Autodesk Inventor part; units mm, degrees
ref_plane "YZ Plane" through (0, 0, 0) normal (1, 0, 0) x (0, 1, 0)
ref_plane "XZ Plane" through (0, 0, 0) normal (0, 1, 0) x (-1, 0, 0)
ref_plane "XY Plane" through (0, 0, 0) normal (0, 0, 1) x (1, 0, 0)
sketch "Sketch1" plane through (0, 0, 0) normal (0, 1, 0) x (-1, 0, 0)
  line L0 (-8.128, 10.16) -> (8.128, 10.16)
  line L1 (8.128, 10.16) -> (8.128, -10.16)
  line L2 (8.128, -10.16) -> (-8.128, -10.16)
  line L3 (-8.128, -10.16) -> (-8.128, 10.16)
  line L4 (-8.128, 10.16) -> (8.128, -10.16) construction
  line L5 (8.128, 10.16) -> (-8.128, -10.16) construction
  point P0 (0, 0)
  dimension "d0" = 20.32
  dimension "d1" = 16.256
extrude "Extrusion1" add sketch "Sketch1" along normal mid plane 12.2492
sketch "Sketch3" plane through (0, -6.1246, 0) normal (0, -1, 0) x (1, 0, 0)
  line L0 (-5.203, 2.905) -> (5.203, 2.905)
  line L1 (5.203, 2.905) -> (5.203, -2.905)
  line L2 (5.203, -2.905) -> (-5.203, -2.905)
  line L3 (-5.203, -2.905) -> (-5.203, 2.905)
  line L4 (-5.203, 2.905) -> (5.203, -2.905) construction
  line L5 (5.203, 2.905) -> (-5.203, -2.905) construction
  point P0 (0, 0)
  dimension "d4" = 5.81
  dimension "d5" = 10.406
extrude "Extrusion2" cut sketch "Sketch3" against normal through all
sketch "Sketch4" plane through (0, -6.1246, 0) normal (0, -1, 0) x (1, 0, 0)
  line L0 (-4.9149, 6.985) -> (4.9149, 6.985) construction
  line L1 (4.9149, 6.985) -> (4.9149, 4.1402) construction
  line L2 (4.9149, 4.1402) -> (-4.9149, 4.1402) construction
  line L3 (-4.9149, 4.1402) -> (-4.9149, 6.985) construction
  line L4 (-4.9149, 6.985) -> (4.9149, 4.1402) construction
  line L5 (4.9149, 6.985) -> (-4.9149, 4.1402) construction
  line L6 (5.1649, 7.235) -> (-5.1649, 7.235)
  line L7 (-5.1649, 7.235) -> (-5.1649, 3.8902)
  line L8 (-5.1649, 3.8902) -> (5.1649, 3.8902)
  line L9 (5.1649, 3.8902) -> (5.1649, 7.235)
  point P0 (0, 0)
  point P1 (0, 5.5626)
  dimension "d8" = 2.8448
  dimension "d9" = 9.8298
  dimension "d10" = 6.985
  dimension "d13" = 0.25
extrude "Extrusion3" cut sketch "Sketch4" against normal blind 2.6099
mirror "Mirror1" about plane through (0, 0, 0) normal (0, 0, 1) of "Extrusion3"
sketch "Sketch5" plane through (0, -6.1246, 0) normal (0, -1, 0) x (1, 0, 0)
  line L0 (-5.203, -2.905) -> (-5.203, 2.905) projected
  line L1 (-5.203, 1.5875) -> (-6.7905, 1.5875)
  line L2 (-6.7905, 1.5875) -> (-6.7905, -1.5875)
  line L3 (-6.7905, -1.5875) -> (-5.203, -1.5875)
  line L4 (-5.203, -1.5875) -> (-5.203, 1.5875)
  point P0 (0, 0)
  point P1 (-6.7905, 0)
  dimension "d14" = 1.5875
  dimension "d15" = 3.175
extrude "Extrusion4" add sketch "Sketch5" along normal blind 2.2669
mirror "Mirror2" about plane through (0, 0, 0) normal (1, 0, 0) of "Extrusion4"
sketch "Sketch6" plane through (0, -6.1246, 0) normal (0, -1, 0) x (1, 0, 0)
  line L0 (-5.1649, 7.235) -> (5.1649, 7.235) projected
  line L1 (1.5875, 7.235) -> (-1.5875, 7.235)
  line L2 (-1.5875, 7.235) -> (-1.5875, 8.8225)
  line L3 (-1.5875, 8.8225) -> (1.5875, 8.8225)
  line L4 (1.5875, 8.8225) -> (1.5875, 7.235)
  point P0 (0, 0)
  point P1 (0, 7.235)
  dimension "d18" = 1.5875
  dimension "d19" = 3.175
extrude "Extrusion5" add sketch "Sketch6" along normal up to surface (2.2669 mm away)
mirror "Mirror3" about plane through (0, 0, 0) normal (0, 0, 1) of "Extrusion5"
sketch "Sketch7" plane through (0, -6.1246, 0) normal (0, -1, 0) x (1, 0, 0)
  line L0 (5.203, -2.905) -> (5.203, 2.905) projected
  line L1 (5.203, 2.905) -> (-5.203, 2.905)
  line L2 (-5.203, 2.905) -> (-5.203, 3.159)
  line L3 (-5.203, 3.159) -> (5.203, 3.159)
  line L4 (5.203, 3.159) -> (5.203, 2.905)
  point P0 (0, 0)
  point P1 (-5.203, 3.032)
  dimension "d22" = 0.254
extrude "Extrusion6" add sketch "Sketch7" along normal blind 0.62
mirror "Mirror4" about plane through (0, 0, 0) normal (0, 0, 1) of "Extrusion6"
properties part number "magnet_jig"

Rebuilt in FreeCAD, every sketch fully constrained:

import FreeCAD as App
import Part
import Sketcher

V = App.Vector
Q = App.Units.Quantity

doc = App.newDocument("Part")
body = doc.addObject("PartDesign::Body", "Body")

sketch1 = body.newObject("Sketcher::SketchObject", "Sketch")
sketch1.AttachmentSupport = (doc.getObject("XZ_Plane"), [""])
sketch1.MapMode = "FlatFace"
sketch1.addGeometry(Part.LineSegment(V(-8, 10, 0), V(8, 10, 0)), False)
sketch1.addGeometry(Part.LineSegment(V(8, 10, 0), V(8, -10, 0)), False)
sketch1.addGeometry(Part.LineSegment(V(8, -10, 0), V(-8, -10, 0)), False)
sketch1.addGeometry(Part.LineSegment(V(-8, -10, 0), V(-8, 10, 0)), False)
sketch1.addConstraint(Sketcher.Constraint("Coincident", 0, 2, 1, 1))
sketch1.addConstraint(Sketcher.Constraint("Coincident", 1, 2, 2, 1))
sketch1.addConstraint(Sketcher.Constraint("Coincident", 2, 2, 3, 1))
sketch1.addConstraint(Sketcher.Constraint("Coincident", 3, 2, 0, 1))
sketch1.addConstraint(Sketcher.Constraint("Horizontal", 0))
sketch1.addConstraint(Sketcher.Constraint("Vertical", 1))
sketch1.addConstraint(Sketcher.Constraint("Horizontal", 2))
sketch1.addConstraint(Sketcher.Constraint("Vertical", 3))
sketch1.addConstraint(Sketcher.Constraint("Symmetric", 0, 2, 2, 2, -1, 1))
sketch1.addConstraint(Sketcher.Constraint("DistanceY", 1, 2, 1, 1, Q("0.8 in")))
sketch1.addConstraint(Sketcher.Constraint("DistanceX", 0, 1, 0, 2, Q("0.64 in")))
pad1 = body.newObject("PartDesign::Pad", "Pad")
pad1.Profile = sketch1
pad1.Length = 12.2492
pad1.Midplane = True

sketch2 = body.newObject("Sketcher::SketchObject", "Sketch001")
sketch2.AttachmentSupport = (doc.getObject("XZ_Plane"), [""])
sketch2.MapMode = "FlatFace"
sketch2.AttachmentOffset = App.Placement(V(0, 0, 6.1246), App.Rotation())
sketch2.addGeometry(Part.LineSegment(V(5, 3, 0), V(-5, 3, 0)), False)
sketch2.addGeometry(Part.LineSegment(V(-5, 3, 0), V(-5, -3, 0)), False)
sketch2.addGeometry(Part.LineSegment(V(-5, -3, 0), V(5, -3, 0)), False)
sketch2.addGeometry(Part.LineSegment(V(5, -3, 0), V(5, 3, 0)), False)
sketch2.addConstraint(Sketcher.Constraint("Coincident", 0, 2, 1, 1))
sketch2.addConstraint(Sketcher.Constraint("Coincident", 1, 2, 2, 1))
sketch2.addConstraint(Sketcher.Constraint("Coincident", 2, 2, 3, 1))
sketch2.addConstraint(Sketcher.Constraint("Coincident", 3, 2, 0, 1))
sketch2.addConstraint(Sketcher.Constraint("Horizontal", 0))
sketch2.addConstraint(Sketcher.Constraint("Vertical", 1))
sketch2.addConstraint(Sketcher.Constraint("Horizontal", 2))
sketch2.addConstraint(Sketcher.Constraint("Vertical", 3))
sketch2.addConstraint(Sketcher.Constraint("Symmetric", 0, 2, 2, 2, -1, 1))
sketch2.addConstraint(Sketcher.Constraint("DistanceX", 0, 2, 0, 1, 10.406))
sketch2.addConstraint(Sketcher.Constraint("DistanceY", 1, 2, 1, 1, 5.81))
pocket1 = body.newObject("PartDesign::Pocket", "Pocket")
pocket1.Profile = sketch2
pocket1.Type = "ThroughAll"

sketch3 = body.newObject("Sketcher::SketchObject", "Sketch002")
sketch3.AttachmentSupport = (doc.getObject("XZ_Plane"), [""])
sketch3.MapMode = "FlatFace"
sketch3.AttachmentOffset = App.Placement(V(0, 0, 6.1246), App.Rotation())
sketch3.addGeometry(Part.LineSegment(V(5.2, 3.9, 0), V(5.2, 7.2, 0)), False)
sketch3.addGeometry(Part.LineSegment(V(5.2, 7.2, 0), V(-5.2, 7.2, 0)), False)
sketch3.addGeometry(Part.LineSegment(V(-5.2, 7.2, 0), V(-5.2, 3.9, 0)), False)
sketch3.addGeometry(Part.LineSegment(V(-5.2, 3.9, 0), V(5.2, 3.9, 0)), False)
sketch3.addConstraint(Sketcher.Constraint("Coincident", 0, 2, 1, 1))
sketch3.addConstraint(Sketcher.Constraint("Coincident", 1, 2, 2, 1))
sketch3.addConstraint(Sketcher.Constraint("Coincident", 2, 2, 3, 1))
sketch3.addConstraint(Sketcher.Constraint("Coincident", 3, 2, 0, 1))
sketch3.addConstraint(Sketcher.Constraint("Vertical", 0))
sketch3.addConstraint(Sketcher.Constraint("Horizontal", 1))
sketch3.addConstraint(Sketcher.Constraint("Vertical", 2))
sketch3.addConstraint(Sketcher.Constraint("Horizontal", 3))
sketch3.addConstraint(Sketcher.Constraint("DistanceX", 1, 2, 1, 1, 10.3298))
sketch3.addConstraint(Sketcher.Constraint("DistanceY", 0, 1, 0, 2, 3.3448))
sketch3.addConstraint(Sketcher.Constraint("DistanceX", -1, 1, 0, 2, 5.165))
sketch3.addConstraint(Sketcher.Constraint("DistanceY", -1, 1, 0, 2, 7.235))
pocket2 = body.newObject("PartDesign::Pocket", "Pocket001")
pocket2.Profile = sketch3
pocket2.Length = 2.6099
doc.recompute()

mirrored = body.newObject("PartDesign::Mirrored", "Mirrored")
mirrored.Originals = [pocket2]
mirrored.MirrorPlane = (doc.getObject("XY_Plane"), [""])
body.Tip = mirrored

sketch4 = body.newObject("Sketcher::SketchObject", "Sketch003")
sketch4.AttachmentSupport = (doc.getObject("XZ_Plane"), [""])
sketch4.MapMode = "FlatFace"
sketch4.AttachmentOffset = App.Placement(V(0, 0, 6.1246), App.Rotation())
sketch4.addGeometry(Part.LineSegment(V(-6.8, -1.6, 0), V(-5.2, -1.6, 0)), False)
sketch4.addGeometry(Part.LineSegment(V(-5.2, -1.6, 0), V(-5.2, 1.6, 0)), False)
sketch4.addGeometry(Part.LineSegment(V(-5.2, 1.6, 0), V(-6.8, 1.6, 0)), False)
sketch4.addGeometry(Part.LineSegment(V(-6.8, 1.6, 0), V(-6.8, -1.6, 0)), False)
sketch4.addConstraint(Sketcher.Constraint("Coincident", 0, 2, 1, 1))
sketch4.addConstraint(Sketcher.Constraint("Coincident", 1, 2, 2, 1))
sketch4.addConstraint(Sketcher.Constraint("Coincident", 2, 2, 3, 1))
sketch4.addConstraint(Sketcher.Constraint("Coincident", 3, 2, 0, 1))
sketch4.addConstraint(Sketcher.Constraint("Horizontal", 0))
sketch4.addConstraint(Sketcher.Constraint("Vertical", 1))
sketch4.addConstraint(Sketcher.Constraint("Horizontal", 2))
sketch4.addConstraint(Sketcher.Constraint("Vertical", 3))
sketch4.addConstraint(Sketcher.Constraint("DistanceX", 0, 1, 0, 2, Q("0.0625 in")))
sketch4.addConstraint(Sketcher.Constraint("DistanceY", 1, 1, 1, 2, Q("0.125 in")))
sketch4.addConstraint(Sketcher.Constraint("DistanceY", 0, 2, -1, 1, Q("0.0625 in")))
sketch4.addConstraint(Sketcher.Constraint("DistanceX", 0, 2, -1, 1, 5.203))
pad2 = body.newObject("PartDesign::Pad", "Pad001")
pad2.Profile = sketch4
pad2.Length = 2.2669
doc.recompute()

mirrored2 = body.newObject("PartDesign::Mirrored", "Mirrored001")
mirrored2.Originals = [pad2]
mirrored2.MirrorPlane = (doc.getObject("YZ_Plane"), [""])
body.Tip = mirrored2

sketch5 = body.newObject("Sketcher::SketchObject", "Sketch004")
sketch5.AttachmentSupport = (doc.getObject("XZ_Plane"), [""])
sketch5.MapMode = "FlatFace"
sketch5.AttachmentOffset = App.Placement(V(0, 0, 6.1246), App.Rotation())
sketch5.addGeometry(Part.LineSegment(V(-1.6, 8.8, 0), V(-1.6, 7.2, 0)), False)
sketch5.addGeometry(Part.LineSegment(V(-1.6, 7.2, 0), V(1.6, 7.2, 0)), False)
sketch5.addGeometry(Part.LineSegment(V(1.6, 7.2, 0), V(1.6, 8.8, 0)), False)
sketch5.addGeometry(Part.LineSegment(V(1.6, 8.8, 0), V(-1.6, 8.8, 0)), False)
sketch5.addConstraint(Sketcher.Constraint("Coincident", 0, 2, 1, 1))
sketch5.addConstraint(Sketcher.Constraint("Coincident", 1, 2, 2, 1))
sketch5.addConstraint(Sketcher.Constraint("Coincident", 2, 2, 3, 1))
sketch5.addConstraint(Sketcher.Constraint("Coincident", 3, 2, 0, 1))
sketch5.addConstraint(Sketcher.Constraint("Vertical", 0))
sketch5.addConstraint(Sketcher.Constraint("Horizontal", 1))
sketch5.addConstraint(Sketcher.Constraint("Vertical", 2))
sketch5.addConstraint(Sketcher.Constraint("Horizontal", 3))
sketch5.addConstraint(Sketcher.Constraint("DistanceX", 1, 1, 1, 2, Q("0.125 in")))
sketch5.addConstraint(Sketcher.Constraint("DistanceY", 0, 2, 0, 1, Q("0.0625 in")))
sketch5.addConstraint(Sketcher.Constraint("DistanceX", 0, 2, -1, 1, Q("0.0625 in")))
sketch5.addConstraint(Sketcher.Constraint("DistanceY", -1, 1, 0, 2, 7.235))
pad3 = body.newObject("PartDesign::Pad", "Pad002")
pad3.Profile = sketch5
pad3.Length = 2.2669
doc.recompute()

mirrored3 = body.newObject("PartDesign::Mirrored", "Mirrored002")
mirrored3.Originals = [pad3]
mirrored3.MirrorPlane = (doc.getObject("XY_Plane"), [""])
body.Tip = mirrored3

sketch6 = body.newObject("Sketcher::SketchObject", "Sketch005")
sketch6.AttachmentSupport = (doc.getObject("XZ_Plane"), [""])
sketch6.MapMode = "FlatFace"
sketch6.AttachmentOffset = App.Placement(V(0, 0, 6.1246), App.Rotation())
sketch6.addGeometry(Part.LineSegment(V(-5.2, 2.9, 0), V(5.2, 2.9, 0)), False)
sketch6.addGeometry(Part.LineSegment(V(5.2, 2.9, 0), V(5.2, 3.16, 0)), False)
sketch6.addGeometry(Part.LineSegment(V(5.2, 3.16, 0), V(-5.2, 3.16, 0)), False)
sketch6.addGeometry(Part.LineSegment(V(-5.2, 3.16, 0), V(-5.2, 2.9, 0)), False)
sketch6.addConstraint(Sketcher.Constraint("Coincident", 0, 2, 1, 1))
sketch6.addConstraint(Sketcher.Constraint("Coincident", 1, 2, 2, 1))
sketch6.addConstraint(Sketcher.Constraint("Coincident", 2, 2, 3, 1))
sketch6.addConstraint(Sketcher.Constraint("Coincident", 3, 2, 0, 1))
sketch6.addConstraint(Sketcher.Constraint("Horizontal", 0))
sketch6.addConstraint(Sketcher.Constraint("Vertical", 1))
sketch6.addConstraint(Sketcher.Constraint("Horizontal", 2))
sketch6.addConstraint(Sketcher.Constraint("Vertical", 3))
sketch6.addConstraint(Sketcher.Constraint("DistanceY", 1, 1, 1, 2, Q("0.01 in")))
sketch6.addConstraint(Sketcher.Constraint("DistanceX", 0, 1, 0, 2, 10.406))
sketch6.addConstraint(Sketcher.Constraint("DistanceX", -1, 1, 0, 2, 5.203))
sketch6.addConstraint(Sketcher.Constraint("DistanceY", -1, 1, 0, 2, 2.905))
pad4 = body.newObject("PartDesign::Pad", "Pad003")
pad4.Profile = sketch6
pad4.Length = Q("0.0244094 in")
doc.recompute()

mirrored4 = body.newObject("PartDesign::Mirrored", "Mirrored003")
mirrored4.Originals = [pad4]
mirrored4.MirrorPlane = (doc.getObject("XY_Plane"), [""])
body.Tip = mirrored4

doc.recompute()
